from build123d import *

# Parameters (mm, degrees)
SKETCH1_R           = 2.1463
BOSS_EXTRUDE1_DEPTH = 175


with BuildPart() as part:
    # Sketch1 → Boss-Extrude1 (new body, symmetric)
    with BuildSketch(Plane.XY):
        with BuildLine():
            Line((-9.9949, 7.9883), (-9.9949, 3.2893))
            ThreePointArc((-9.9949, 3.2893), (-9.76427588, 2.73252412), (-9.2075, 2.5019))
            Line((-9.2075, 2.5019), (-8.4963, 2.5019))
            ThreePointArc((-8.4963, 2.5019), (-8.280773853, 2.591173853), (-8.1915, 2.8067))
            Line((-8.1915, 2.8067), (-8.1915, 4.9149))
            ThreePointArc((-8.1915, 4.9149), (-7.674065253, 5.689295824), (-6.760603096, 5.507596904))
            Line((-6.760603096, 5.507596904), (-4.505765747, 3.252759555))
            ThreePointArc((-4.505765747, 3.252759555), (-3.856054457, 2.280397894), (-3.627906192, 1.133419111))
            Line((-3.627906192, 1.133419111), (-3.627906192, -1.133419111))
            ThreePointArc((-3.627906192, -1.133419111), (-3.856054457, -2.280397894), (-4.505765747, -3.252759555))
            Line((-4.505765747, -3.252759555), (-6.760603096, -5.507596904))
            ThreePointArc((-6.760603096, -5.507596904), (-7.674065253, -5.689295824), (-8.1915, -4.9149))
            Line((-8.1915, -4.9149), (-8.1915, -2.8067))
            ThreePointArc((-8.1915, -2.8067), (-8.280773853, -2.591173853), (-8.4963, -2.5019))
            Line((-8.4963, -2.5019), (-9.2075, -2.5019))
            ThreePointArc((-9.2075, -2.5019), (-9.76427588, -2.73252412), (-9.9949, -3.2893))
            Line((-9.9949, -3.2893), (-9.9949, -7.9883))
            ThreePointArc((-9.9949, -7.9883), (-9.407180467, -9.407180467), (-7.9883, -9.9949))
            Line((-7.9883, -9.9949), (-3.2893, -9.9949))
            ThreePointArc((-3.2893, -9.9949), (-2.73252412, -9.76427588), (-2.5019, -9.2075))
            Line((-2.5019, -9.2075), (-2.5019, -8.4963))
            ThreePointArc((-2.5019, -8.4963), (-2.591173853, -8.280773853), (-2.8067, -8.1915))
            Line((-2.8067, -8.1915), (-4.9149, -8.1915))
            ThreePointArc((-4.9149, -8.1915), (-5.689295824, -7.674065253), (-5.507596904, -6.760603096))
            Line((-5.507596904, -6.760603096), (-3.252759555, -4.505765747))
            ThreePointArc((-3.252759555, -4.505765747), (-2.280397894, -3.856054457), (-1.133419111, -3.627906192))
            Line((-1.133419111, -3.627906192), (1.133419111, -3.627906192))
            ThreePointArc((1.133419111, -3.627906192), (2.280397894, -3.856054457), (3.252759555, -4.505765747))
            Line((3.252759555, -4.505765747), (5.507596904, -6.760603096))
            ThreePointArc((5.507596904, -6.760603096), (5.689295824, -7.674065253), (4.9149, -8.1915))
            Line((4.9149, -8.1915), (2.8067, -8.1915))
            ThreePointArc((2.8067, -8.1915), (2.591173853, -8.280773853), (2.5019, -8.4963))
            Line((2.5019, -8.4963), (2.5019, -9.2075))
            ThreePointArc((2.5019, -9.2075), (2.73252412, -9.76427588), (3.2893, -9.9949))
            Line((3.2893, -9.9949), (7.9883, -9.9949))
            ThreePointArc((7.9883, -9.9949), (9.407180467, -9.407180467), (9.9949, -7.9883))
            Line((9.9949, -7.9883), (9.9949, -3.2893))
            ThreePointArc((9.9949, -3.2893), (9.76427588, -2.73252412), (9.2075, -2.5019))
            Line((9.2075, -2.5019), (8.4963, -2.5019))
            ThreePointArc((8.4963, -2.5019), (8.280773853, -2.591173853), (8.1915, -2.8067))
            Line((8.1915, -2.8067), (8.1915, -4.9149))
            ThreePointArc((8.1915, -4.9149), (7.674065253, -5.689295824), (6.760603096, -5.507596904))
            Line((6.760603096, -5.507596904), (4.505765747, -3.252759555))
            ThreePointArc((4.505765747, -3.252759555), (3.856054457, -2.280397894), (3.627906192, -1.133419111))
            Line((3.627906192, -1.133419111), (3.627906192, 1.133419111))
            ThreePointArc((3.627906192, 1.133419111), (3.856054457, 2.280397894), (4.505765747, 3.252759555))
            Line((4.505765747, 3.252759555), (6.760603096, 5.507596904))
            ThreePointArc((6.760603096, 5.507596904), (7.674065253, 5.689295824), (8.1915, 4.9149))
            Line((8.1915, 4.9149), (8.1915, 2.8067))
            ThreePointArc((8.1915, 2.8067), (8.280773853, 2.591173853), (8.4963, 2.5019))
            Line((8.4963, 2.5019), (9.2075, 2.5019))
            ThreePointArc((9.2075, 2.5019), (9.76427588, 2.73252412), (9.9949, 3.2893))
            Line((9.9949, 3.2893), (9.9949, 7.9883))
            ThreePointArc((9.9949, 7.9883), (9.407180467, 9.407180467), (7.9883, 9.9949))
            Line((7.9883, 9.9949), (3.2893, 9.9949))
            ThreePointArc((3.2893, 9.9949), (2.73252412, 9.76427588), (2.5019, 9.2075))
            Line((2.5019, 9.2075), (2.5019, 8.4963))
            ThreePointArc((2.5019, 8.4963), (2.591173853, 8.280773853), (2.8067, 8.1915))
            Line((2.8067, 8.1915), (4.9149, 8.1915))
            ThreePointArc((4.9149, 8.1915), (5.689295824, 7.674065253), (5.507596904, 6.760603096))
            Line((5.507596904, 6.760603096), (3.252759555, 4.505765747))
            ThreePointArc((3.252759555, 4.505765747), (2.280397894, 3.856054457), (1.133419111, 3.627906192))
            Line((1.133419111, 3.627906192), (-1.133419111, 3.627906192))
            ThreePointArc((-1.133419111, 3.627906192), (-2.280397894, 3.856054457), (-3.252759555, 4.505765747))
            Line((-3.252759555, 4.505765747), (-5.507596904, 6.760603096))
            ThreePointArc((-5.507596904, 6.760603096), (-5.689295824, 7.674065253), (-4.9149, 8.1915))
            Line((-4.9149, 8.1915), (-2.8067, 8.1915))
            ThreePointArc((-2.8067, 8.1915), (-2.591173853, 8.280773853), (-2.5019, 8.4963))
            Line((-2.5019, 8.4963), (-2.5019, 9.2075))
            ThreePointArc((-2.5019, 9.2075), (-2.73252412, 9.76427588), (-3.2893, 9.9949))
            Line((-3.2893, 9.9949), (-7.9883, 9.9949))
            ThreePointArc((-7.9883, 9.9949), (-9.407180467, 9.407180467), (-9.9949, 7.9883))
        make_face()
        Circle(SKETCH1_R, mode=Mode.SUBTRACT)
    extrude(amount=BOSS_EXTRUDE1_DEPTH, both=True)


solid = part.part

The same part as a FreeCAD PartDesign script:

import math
import FreeCAD as App
import Part
import Sketcher
Q = App.Units.Quantity

doc = App.newDocument("Part")
body = doc.addObject("PartDesign::Body", "Body")

# Sketch on XY plane
sketch1 = body.newObject("Sketcher::SketchObject", "Sketch")
sketch1.AttachmentSupport = (doc.getObject("XY_Plane"), [""])
sketch1.MapMode = "FlatFace"
sketch1.addGeometry([
    Part.LineSegment(App.Vector(-9.99, 7.99, 0), App.Vector(-9.99, 3.29, 0)),  # 0
    Part.ArcOfCircle(Part.Circle(App.Vector(-9.21, 3.29, 0), App.Vector(0, 0, 1), 0.79), math.radians(180), math.radians(270)),  # 1
    Part.LineSegment(App.Vector(-9.21, 2.5, 0), App.Vector(-8.5, 2.5, 0)),  # 2
    Part.ArcOfCircle(Part.Circle(App.Vector(-8.5, 2.81, 0), App.Vector(0, 0, 1), 0.3), math.radians(-90), math.radians(0)),  # 3
    Part.LineSegment(App.Vector(-8.19, 2.81, 0), App.Vector(-8.19, 4.91, 0)),  # 4
    Part.ArcOfCircle(Part.Circle(App.Vector(-7.35, 4.91, 0), App.Vector(0, 0, 1), 0.84), math.radians(45), math.radians(180)),  # 5
    Part.LineSegment(App.Vector(-6.76, 5.51, 0), App.Vector(-4.51, 3.25, 0)),  # 6
    Part.ArcOfCircle(Part.Circle(App.Vector(-6.63, 1.13, 0), App.Vector(0, 0, 1), 3), math.radians(0), math.radians(45)),  # 7
    Part.LineSegment(App.Vector(-3.63, 1.13, 0), App.Vector(-3.63, -1.13, 0)),  # 8
    Part.ArcOfCircle(Part.Circle(App.Vector(-6.63, -1.13, 0), App.Vector(0, 0, 1), 3), math.radians(-45), math.radians(0)),  # 9
    Part.LineSegment(App.Vector(-4.51, -3.25, 0), App.Vector(-6.76, -5.51, 0)),  # 10
    Part.ArcOfCircle(Part.Circle(App.Vector(-7.35, -4.91, 0), App.Vector(0, 0, 1), 0.84), math.radians(180), math.radians(315)),  # 11
    Part.LineSegment(App.Vector(-8.19, -4.91, 0), App.Vector(-8.19, -2.81, 0)),  # 12
    Part.ArcOfCircle(Part.Circle(App.Vector(-8.5, -2.81, 0), App.Vector(0, 0, 1), 0.3), math.radians(0), math.radians(90)),  # 13
    Part.LineSegment(App.Vector(-8.5, -2.5, 0), App.Vector(-9.21, -2.5, 0)),  # 14
    Part.ArcOfCircle(Part.Circle(App.Vector(-9.21, -3.29, 0), App.Vector(0, 0, 1), 0.79), math.radians(90), math.radians(180)),  # 15
    Part.LineSegment(App.Vector(-9.99, -3.29, 0), App.Vector(-9.99, -7.99, 0)),  # 16
    Part.ArcOfCircle(Part.Circle(App.Vector(-7.99, -7.99, 0), App.Vector(0, 0, 1), 2.01), math.radians(180), math.radians(270)),  # 17
    Part.LineSegment(App.Vector(-7.99, -9.99, 0), App.Vector(-3.29, -9.99, 0)),  # 18
    Part.ArcOfCircle(Part.Circle(App.Vector(-3.29, -9.21, 0), App.Vector(0, 0, 1), 0.79), math.radians(-90), math.radians(0)),  # 19
    Part.LineSegment(App.Vector(-2.5, -9.21, 0), App.Vector(-2.5, -8.5, 0)),  # 20
    Part.ArcOfCircle(Part.Circle(App.Vector(-2.81, -8.5, 0), App.Vector(0, 0, 1), 0.3), math.radians(0), math.radians(90)),  # 21
    Part.LineSegment(App.Vector(-2.81, -8.19, 0), App.Vector(-4.91, -8.19, 0)),  # 22
    Part.ArcOfCircle(Part.Circle(App.Vector(-4.91, -7.35, 0), App.Vector(0, 0, 1), 0.84), math.radians(135), math.radians(270)),  # 23
    Part.LineSegment(App.Vector(-5.51, -6.76, 0), App.Vector(-3.25, -4.51, 0)),  # 24
    Part.ArcOfCircle(Part.Circle(App.Vector(-1.13, -6.63, 0), App.Vector(0, 0, 1), 3), math.radians(90), math.radians(135)),  # 25
    Part.LineSegment(App.Vector(-1.13, -3.63, 0), App.Vector(1.13, -3.63, 0)),  # 26
    Part.ArcOfCircle(Part.Circle(App.Vector(1.13, -6.63, 0), App.Vector(0, 0, 1), 3), math.radians(45), math.radians(90)),  # 27
    Part.LineSegment(App.Vector(3.25, -4.51, 0), App.Vector(5.51, -6.76, 0)),  # 28
    Part.ArcOfCircle(Part.Circle(App.Vector(4.91, -7.35, 0), App.Vector(0, 0, 1), 0.84), math.radians(-90), math.radians(45)),  # 29
    Part.LineSegment(App.Vector(4.91, -8.19, 0), App.Vector(2.81, -8.19, 0)),  # 30
    Part.ArcOfCircle(Part.Circle(App.Vector(2.81, -8.5, 0), App.Vector(0, 0, 1), 0.3), math.radians(90), math.radians(180)),  # 31
    Part.LineSegment(App.Vector(2.5, -8.5, 0), App.Vector(2.5, -9.21, 0)),  # 32
    Part.ArcOfCircle(Part.Circle(App.Vector(3.29, -9.21, 0), App.Vector(0, 0, 1), 0.79), math.radians(180), math.radians(270)),  # 33
    Part.LineSegment(App.Vector(3.29, -9.99, 0), App.Vector(7.99, -9.99, 0)),  # 34
    Part.ArcOfCircle(Part.Circle(App.Vector(7.99, -7.99, 0), App.Vector(0, 0, 1), 2.01), math.radians(-90), math.radians(0)),  # 35
    Part.LineSegment(App.Vector(9.99, -7.99, 0), App.Vector(9.99, -3.29, 0)),  # 36
    Part.ArcOfCircle(Part.Circle(App.Vector(9.21, -3.29, 0), App.Vector(0, 0, 1), 0.79), math.radians(0), math.radians(90)),  # 37
    Part.LineSegment(App.Vector(9.21, -2.5, 0), App.Vector(8.5, -2.5, 0)),  # 38
    Part.ArcOfCircle(Part.Circle(App.Vector(8.5, -2.81, 0), App.Vector(0, 0, 1), 0.3), math.radians(90), math.radians(180)),  # 39
    Part.LineSegment(App.Vector(8.19, -2.81, 0), App.Vector(8.19, -4.91, 0)),  # 40
    Part.ArcOfCircle(Part.Circle(App.Vector(7.35, -4.91, 0), App.Vector(0, 0, 1), 0.84), math.radians(-135), math.radians(0)),  # 41
    Part.LineSegment(App.Vector(6.76, -5.51, 0), App.Vector(4.51, -3.25, 0)),  # 42
    Part.ArcOfCircle(Part.Circle(App.Vector(6.63, -1.13, 0), App.Vector(0, 0, 1), 3), math.radians(180), math.radians(225)),  # 43
    Part.LineSegment(App.Vector(3.63, -1.13, 0), App.Vector(3.63, 1.13, 0)),  # 44
    Part.ArcOfCircle(Part.Circle(App.Vector(6.63, 1.13, 0), App.Vector(0, 0, 1), 3), math.radians(135), math.radians(180)),  # 45
    Part.LineSegment(App.Vector(4.51, 3.25, 0), App.Vector(6.76, 5.51, 0)),  # 46
    Part.ArcOfCircle(Part.Circle(App.Vector(7.35, 4.91, 0), App.Vector(0, 0, 1), 0.84), math.radians(0), math.radians(135)),  # 47
    Part.LineSegment(App.Vector(8.19, 4.91, 0), App.Vector(8.19, 2.81, 0)),  # 48
    Part.ArcOfCircle(Part.Circle(App.Vector(8.5, 2.81, 0), App.Vector(0, 0, 1), 0.3), math.radians(180), math.radians(270)),  # 49
    Part.LineSegment(App.Vector(8.5, 2.5, 0), App.Vector(9.21, 2.5, 0)),  # 50
    Part.ArcOfCircle(Part.Circle(App.Vector(9.21, 3.29, 0), App.Vector(0, 0, 1), 0.79), math.radians(-90), math.radians(0)),  # 51
    Part.LineSegment(App.Vector(9.99, 3.29, 0), App.Vector(9.99, 7.99, 0)),  # 52
    Part.ArcOfCircle(Part.Circle(App.Vector(7.99, 7.99, 0), App.Vector(0, 0, 1), 2.01), math.radians(0), math.radians(90)),  # 53
    Part.LineSegment(App.Vector(7.99, 9.99, 0), App.Vector(3.29, 9.99, 0)),  # 54
    Part.ArcOfCircle(Part.Circle(App.Vector(3.29, 9.21, 0), App.Vector(0, 0, 1), 0.79), math.radians(90), math.radians(180)),  # 55
    Part.LineSegment(App.Vector(2.5, 9.21, 0), App.Vector(2.5, 8.5, 0)),  # 56
    Part.ArcOfCircle(Part.Circle(App.Vector(2.81, 8.5, 0), App.Vector(0, 0, 1), 0.3), math.radians(180), math.radians(270)),  # 57
    Part.LineSegment(App.Vector(2.81, 8.19, 0), App.Vector(4.91, 8.19, 0)),  # 58
    Part.ArcOfCircle(Part.Circle(App.Vector(4.91, 7.35, 0), App.Vector(0, 0, 1), 0.84), math.radians(-45), math.radians(90)),  # 59
    Part.LineSegment(App.Vector(5.51, 6.76, 0), App.Vector(3.25, 4.51, 0)),  # 60
    Part.ArcOfCircle(Part.Circle(App.Vector(1.13, 6.63, 0), App.Vector(0, 0, 1), 3), math.radians(-90), math.radians(-45)),  # 61
    Part.LineSegment(App.Vector(1.13, 3.63, 0), App.Vector(-1.13, 3.63, 0)),  # 62
    Part.ArcOfCircle(Part.Circle(App.Vector(-1.13, 6.63, 0), App.Vector(0, 0, 1), 3), math.radians(-135), math.radians(-90)),  # 63
    Part.LineSegment(App.Vector(-3.25, 4.51, 0), App.Vector(-5.51, 6.76, 0)),  # 64
    Part.ArcOfCircle(Part.Circle(App.Vector(-4.91, 7.35, 0), App.Vector(0, 0, 1), 0.84), math.radians(90), math.radians(225)),  # 65
    Part.LineSegment(App.Vector(-4.91, 8.19, 0), App.Vector(-2.81, 8.19, 0)),  # 66
    Part.ArcOfCircle(Part.Circle(App.Vector(-2.81, 8.5, 0), App.Vector(0, 0, 1), 0.3), math.radians(-90), math.radians(0)),  # 67
    Part.LineSegment(App.Vector(-2.5, 8.5, 0), App.Vector(-2.5, 9.21, 0)),  # 68
    Part.ArcOfCircle(Part.Circle(App.Vector(-3.29, 9.21, 0), App.Vector(0, 0, 1), 0.79), math.radians(0), math.radians(90)),  # 69
    Part.LineSegment(App.Vector(-3.29, 9.99, 0), App.Vector(-7.99, 9.99, 0)),  # 70
    Part.ArcOfCircle(Part.Circle(App.Vector(-7.99, 7.99, 0), App.Vector(0, 0, 1), 2.01), math.radians(90), math.radians(180)),  # 71
    Part.Circle(App.Vector(0, 0, 0), App.Vector(0, 0, 1), 2.15),  # 72
], False)
sketch1.addConstraint([
    Sketcher.Constraint("Tangent", 0, 2, 1, 1),
    Sketcher.Constraint("Tangent", 1, 2, 2, 1),
    Sketcher.Constraint("Tangent", 2, 2, 3, 1),
    Sketcher.Constraint("Tangent", 3, 2, 4, 1),
    Sketcher.Constraint("Tangent", 4, 2, 5, 2),
    Sketcher.Constraint("Tangent", 5, 1, 6, 1),
    Sketcher.Constraint("Tangent", 6, 2, 7, 2),
    Sketcher.Constraint("Tangent", 7, 1, 8, 1),
    Sketcher.Constraint("Tangent", 8, 2, 9, 2),
    Sketcher.Constraint("Tangent", 9, 1, 10, 1),
    Sketcher.Constraint("Tangent", 10, 2, 11, 2),
    Sketcher.Constraint("Tangent", 11, 1, 12, 1),
    Sketcher.Constraint("Tangent", 12, 2, 13, 1),
    Sketcher.Constraint("Tangent", 13, 2, 14, 1),
    Sketcher.Constraint("Tangent", 14, 2, 15, 1),
    Sketcher.Constraint("Tangent", 15, 2, 16, 1),
    Sketcher.Constraint("Tangent", 16, 2, 17, 1),
    Sketcher.Constraint("Tangent", 17, 2, 18, 1),
    Sketcher.Constraint("Tangent", 18, 2, 19, 1),
    Sketcher.Constraint("Tangent", 19, 2, 20, 1),
    Sketcher.Constraint("Tangent", 20, 2, 21, 1),
    Sketcher.Constraint("Tangent", 21, 2, 22, 1),
    Sketcher.Constraint("Tangent", 22, 2, 23, 2),
    Sketcher.Constraint("Tangent", 23, 1, 24, 1),
    Sketcher.Constraint("Tangent", 24, 2, 25, 2),
    Sketcher.Constraint("Tangent", 25, 1, 26, 1),
    Sketcher.Constraint("Tangent", 26, 2, 27, 2),
    Sketcher.Constraint("Tangent", 27, 1, 28, 1),
    Sketcher.Constraint("Tangent", 28, 2, 29, 2),
    Sketcher.Constraint("Tangent", 29, 1, 30, 1),
    Sketcher.Constraint("Tangent", 30, 2, 31, 1),
    Sketcher.Constraint("Tangent", 31, 2, 32, 1),
    Sketcher.Constraint("Tangent", 32, 2, 33, 1),
    Sketcher.Constraint("Tangent", 33, 2, 34, 1),
    Sketcher.Constraint("Tangent", 34, 2, 35, 1),
    Sketcher.Constraint("Tangent", 35, 2, 36, 1),
    Sketcher.Constraint("Tangent", 36, 2, 37, 1),
    Sketcher.Constraint("Tangent", 37, 2, 38, 1),
    Sketcher.Constraint("Tangent", 38, 2, 39, 1),
    Sketcher.Constraint("Tangent", 39, 2, 40, 1),
    Sketcher.Constraint("Tangent", 40, 2, 41, 2),
    Sketcher.Constraint("Tangent", 41, 1, 42, 1),
    Sketcher.Constraint("Tangent", 42, 2, 43, 2),
    Sketcher.Constraint("Tangent", 43, 1, 44, 1),
    Sketcher.Constraint("Tangent", 44, 2, 45, 2),
    Sketcher.Constraint("Tangent", 45, 1, 46, 1),
    Sketcher.Constraint("Tangent", 46, 2, 47, 2),
    Sketcher.Constraint("Tangent", 47, 1, 48, 1),
    Sketcher.Constraint("Tangent", 48, 2, 49, 1),
    Sketcher.Constraint("Tangent", 49, 2, 50, 1),
    Sketcher.Constraint("Tangent", 50, 2, 51, 1),
    Sketcher.Constraint("Tangent", 51, 2, 52, 1),
    Sketcher.Constraint("Tangent", 52, 2, 53, 1),
    Sketcher.Constraint("Tangent", 53, 2, 54, 1),
    Sketcher.Constraint("Tangent", 54, 2, 55, 1),
    Sketcher.Constraint("Tangent", 55, 2, 56, 1),
    Sketcher.Constraint("Tangent", 56, 2, 57, 1),
    Sketcher.Constraint("Tangent", 57, 2, 58, 1),
    Sketcher.Constraint("Tangent", 58, 2, 59, 2),
    Sketcher.Constraint("Tangent", 59, 1, 60, 1),
    Sketcher.Constraint("Tangent", 60, 2, 61, 2),
    Sketcher.Constraint("Tangent", 61, 1, 62, 1),
    Sketcher.Constraint("Tangent", 62, 2, 63, 2),
    Sketcher.Constraint("Tangent", 63, 1, 64, 1),
    Sketcher.Constraint("Tangent", 64, 2, 65, 2),
    Sketcher.Constraint("Tangent", 65, 1, 66, 1),
    Sketcher.Constraint("Tangent", 66, 2, 67, 1),
    Sketcher.Constraint("Tangent", 67, 2, 68, 1),
    Sketcher.Constraint("Tangent", 68, 2, 69, 1),
    Sketcher.Constraint("Tangent", 69, 2, 70, 1),
    Sketcher.Constraint("Tangent", 70, 2, 71, 1),
    Sketcher.Constraint("Tangent", 71, 2, 0, 1),
    Sketcher.Constraint("Vertical", 0),
    Sketcher.Constraint("Horizontal", 2),
    Sketcher.Constraint("Vertical", 4),
    Sketcher.Constraint("Vertical", 8),
    Sketcher.Constraint("Vertical", 12),
    Sketcher.Constraint("Horizontal", 14),
    Sketcher.Constraint("Vertical", 16),
    Sketcher.Constraint("Horizontal", 18),
    Sketcher.Constraint("Vertical", 20),
    Sketcher.Constraint("Horizontal", 22),
    Sketcher.Constraint("Horizontal", 26),
    Sketcher.Constraint("Horizontal", 30),
    Sketcher.Constraint("Vertical", 32),
    Sketcher.Constraint("Horizontal", 34),
    Sketcher.Constraint("Vertical", 36),
    Sketcher.Constraint("Horizontal", 38),
    Sketcher.Constraint("Vertical", 40),
    Sketcher.Constraint("Vertical", 44),
    Sketcher.Constraint("Vertical", 48),
    Sketcher.Constraint("Horizontal", 50),
    Sketcher.Constraint("Vertical", 52),
    Sketcher.Constraint("Horizontal", 54),
    Sketcher.Constraint("Vertical", 56),
    Sketcher.Constraint("Horizontal", 58),
    Sketcher.Constraint("Horizontal", 62),
    Sketcher.Constraint("Horizontal", 66),
    Sketcher.Constraint("Vertical", 68),
    Sketcher.Constraint("Horizontal", 70),
    Sketcher.Constraint("Coincident", 72, 3, -1, 1),
    Sketcher.Constraint("Equal", 7, 9),
    Sketcher.Constraint("Equal", 5, 11),
    Sketcher.Constraint("Equal", 3, 13),
    Sketcher.Constraint("Equal", 1, 15),
    Sketcher.Constraint("Equal", 15, 19),
    Sketcher.Constraint("Equal", 13, 21),
    Sketcher.Constraint("Equal", 11, 23),
    Sketcher.Constraint("Equal", 9, 25),
    Sketcher.Constraint("Equal", 25, 27),
    Sketcher.Constraint("Equal", 23, 29),
    Sketcher.Constraint("Equal", 21, 31),
    Sketcher.Constraint("Equal", 19, 33),
    Sketcher.Constraint("Equal", 17, 35),
    Sketcher.Constraint("Equal", 33, 37),
    Sketcher.Constraint("Equal", 31, 39),
    Sketcher.Constraint("Equal", 29, 41),
    Sketcher.Constraint("Equal", 27, 43),
    Sketcher.Constraint("Equal", 43, 45),
    Sketcher.Constraint("Equal", 41, 47),
    Sketcher.Constraint("Equal", 39, 49),
    Sketcher.Constraint("Equal", 37, 51),
    Sketcher.Constraint("Equal", 35, 53),
    Sketcher.Constraint("Equal", 51, 55),
    Sketcher.Constraint("Equal", 49, 57),
    Sketcher.Constraint("Equal", 47, 59),
    Sketcher.Constraint("Equal", 45, 61),
    Sketcher.Constraint("Equal", 61, 63),
    Sketcher.Constraint("Equal", 59, 65),
    Sketcher.Constraint("Equal", 57, 67),
    Sketcher.Constraint("Equal", 55, 69),
    Sketcher.Constraint("Equal", 53, 71),
    Sketcher.Constraint("Symmetric", 1, 3, 37, 3, -1, 1),
    Sketcher.Constraint("Symmetric", 5, 3, 41, 3, -1, 1),
    Sketcher.Constraint("Symmetric", 7, 3, 43, 3, -1, 1),
    Sketcher.Constraint("Symmetric", 11, 3, 47, 3, -1, 1),
    Sketcher.Constraint("Symmetric", 15, 3, 51, 3, -1, 1),
    Sketcher.Constraint("Symmetric", 19, 3, 55, 3, -1, 1),
    Sketcher.Constraint("Symmetric", 23, 3, 59, 3, -1, 1),
    Sketcher.Constraint("Symmetric", 25, 3, 61, 3, -1, 1),
    Sketcher.Constraint("Symmetric", 29, 3, 65, 3, -1, 1),
    Sketcher.Constraint("Symmetric", 33, 3, 69, 3, -1, 1),
    Sketcher.Constraint("Symmetric", 23, 3, 29, 3, -2),
    Sketcher.Constraint("Symmetric", 19, 3, 33, 3, -2),
    Sketcher.Constraint("Symmetric", 15, 3, 37, 3, -2),
    Sketcher.Constraint("Symmetric", 11, 3, 41, 3, -2),
    Sketcher.Constraint("Perpendicular", 6, 10),
    Sketcher.Constraint("Parallel", 10, 24),
    Sketcher.Constraint("Perpendicular", 24, 28),
    Sketcher.Constraint("Perpendicular", 42, 46),
    Sketcher.Constraint("Perpendicular", 60, 64),
    Sketcher.Constraint("Horizontal", 9, 3, 43, 3),
    Sketcher.Constraint("Equal", 70, 0),
    Sketcher.Constraint("Equal", 66, 4),
    Sketcher.Constraint("Equal", 62, 8),
    Sketcher.Constraint("Equal", 50, 20),
    Sketcher.Constraint("Equal", 10, 24),
    Sketcher.Constraint("Diameter", 72, Q("0.169 in")),
    Sketcher.Constraint("Radius", 1, Q("0.031 in")),
    Sketcher.Constraint("Radius", 3, Q("0.012 in")),
    Sketcher.Constraint("Radius", 5, Q("0.033 in")),
    Sketcher.Constraint("Radius", 7, Q("0.118 in")),
    Sketcher.Constraint("Radius", 17, Q("0.079 in")),
    Sketcher.Constraint("DistanceX", 2, 1, 2, 2, Q("0.028 in")),
    Sketcher.Constraint("DistanceX", 18, 1, 18, 2, Q("0.185 in")),
    Sketcher.Constraint("DistanceX", 22, 2, 22, 1, Q("0.083 in")),
    Sketcher.Constraint("DistanceX", 1, 3, -1, 1, Q("0.3625 in")),
    Sketcher.Constraint("DistanceX", 26, 1, 26, 2, 2.266838),
])
pad1 = body.newObject("PartDesign::Pad", "Pad")
pad1.Profile = sketch1
pad1.Length = 350
pad1.Midplane = True

doc.recompute()
